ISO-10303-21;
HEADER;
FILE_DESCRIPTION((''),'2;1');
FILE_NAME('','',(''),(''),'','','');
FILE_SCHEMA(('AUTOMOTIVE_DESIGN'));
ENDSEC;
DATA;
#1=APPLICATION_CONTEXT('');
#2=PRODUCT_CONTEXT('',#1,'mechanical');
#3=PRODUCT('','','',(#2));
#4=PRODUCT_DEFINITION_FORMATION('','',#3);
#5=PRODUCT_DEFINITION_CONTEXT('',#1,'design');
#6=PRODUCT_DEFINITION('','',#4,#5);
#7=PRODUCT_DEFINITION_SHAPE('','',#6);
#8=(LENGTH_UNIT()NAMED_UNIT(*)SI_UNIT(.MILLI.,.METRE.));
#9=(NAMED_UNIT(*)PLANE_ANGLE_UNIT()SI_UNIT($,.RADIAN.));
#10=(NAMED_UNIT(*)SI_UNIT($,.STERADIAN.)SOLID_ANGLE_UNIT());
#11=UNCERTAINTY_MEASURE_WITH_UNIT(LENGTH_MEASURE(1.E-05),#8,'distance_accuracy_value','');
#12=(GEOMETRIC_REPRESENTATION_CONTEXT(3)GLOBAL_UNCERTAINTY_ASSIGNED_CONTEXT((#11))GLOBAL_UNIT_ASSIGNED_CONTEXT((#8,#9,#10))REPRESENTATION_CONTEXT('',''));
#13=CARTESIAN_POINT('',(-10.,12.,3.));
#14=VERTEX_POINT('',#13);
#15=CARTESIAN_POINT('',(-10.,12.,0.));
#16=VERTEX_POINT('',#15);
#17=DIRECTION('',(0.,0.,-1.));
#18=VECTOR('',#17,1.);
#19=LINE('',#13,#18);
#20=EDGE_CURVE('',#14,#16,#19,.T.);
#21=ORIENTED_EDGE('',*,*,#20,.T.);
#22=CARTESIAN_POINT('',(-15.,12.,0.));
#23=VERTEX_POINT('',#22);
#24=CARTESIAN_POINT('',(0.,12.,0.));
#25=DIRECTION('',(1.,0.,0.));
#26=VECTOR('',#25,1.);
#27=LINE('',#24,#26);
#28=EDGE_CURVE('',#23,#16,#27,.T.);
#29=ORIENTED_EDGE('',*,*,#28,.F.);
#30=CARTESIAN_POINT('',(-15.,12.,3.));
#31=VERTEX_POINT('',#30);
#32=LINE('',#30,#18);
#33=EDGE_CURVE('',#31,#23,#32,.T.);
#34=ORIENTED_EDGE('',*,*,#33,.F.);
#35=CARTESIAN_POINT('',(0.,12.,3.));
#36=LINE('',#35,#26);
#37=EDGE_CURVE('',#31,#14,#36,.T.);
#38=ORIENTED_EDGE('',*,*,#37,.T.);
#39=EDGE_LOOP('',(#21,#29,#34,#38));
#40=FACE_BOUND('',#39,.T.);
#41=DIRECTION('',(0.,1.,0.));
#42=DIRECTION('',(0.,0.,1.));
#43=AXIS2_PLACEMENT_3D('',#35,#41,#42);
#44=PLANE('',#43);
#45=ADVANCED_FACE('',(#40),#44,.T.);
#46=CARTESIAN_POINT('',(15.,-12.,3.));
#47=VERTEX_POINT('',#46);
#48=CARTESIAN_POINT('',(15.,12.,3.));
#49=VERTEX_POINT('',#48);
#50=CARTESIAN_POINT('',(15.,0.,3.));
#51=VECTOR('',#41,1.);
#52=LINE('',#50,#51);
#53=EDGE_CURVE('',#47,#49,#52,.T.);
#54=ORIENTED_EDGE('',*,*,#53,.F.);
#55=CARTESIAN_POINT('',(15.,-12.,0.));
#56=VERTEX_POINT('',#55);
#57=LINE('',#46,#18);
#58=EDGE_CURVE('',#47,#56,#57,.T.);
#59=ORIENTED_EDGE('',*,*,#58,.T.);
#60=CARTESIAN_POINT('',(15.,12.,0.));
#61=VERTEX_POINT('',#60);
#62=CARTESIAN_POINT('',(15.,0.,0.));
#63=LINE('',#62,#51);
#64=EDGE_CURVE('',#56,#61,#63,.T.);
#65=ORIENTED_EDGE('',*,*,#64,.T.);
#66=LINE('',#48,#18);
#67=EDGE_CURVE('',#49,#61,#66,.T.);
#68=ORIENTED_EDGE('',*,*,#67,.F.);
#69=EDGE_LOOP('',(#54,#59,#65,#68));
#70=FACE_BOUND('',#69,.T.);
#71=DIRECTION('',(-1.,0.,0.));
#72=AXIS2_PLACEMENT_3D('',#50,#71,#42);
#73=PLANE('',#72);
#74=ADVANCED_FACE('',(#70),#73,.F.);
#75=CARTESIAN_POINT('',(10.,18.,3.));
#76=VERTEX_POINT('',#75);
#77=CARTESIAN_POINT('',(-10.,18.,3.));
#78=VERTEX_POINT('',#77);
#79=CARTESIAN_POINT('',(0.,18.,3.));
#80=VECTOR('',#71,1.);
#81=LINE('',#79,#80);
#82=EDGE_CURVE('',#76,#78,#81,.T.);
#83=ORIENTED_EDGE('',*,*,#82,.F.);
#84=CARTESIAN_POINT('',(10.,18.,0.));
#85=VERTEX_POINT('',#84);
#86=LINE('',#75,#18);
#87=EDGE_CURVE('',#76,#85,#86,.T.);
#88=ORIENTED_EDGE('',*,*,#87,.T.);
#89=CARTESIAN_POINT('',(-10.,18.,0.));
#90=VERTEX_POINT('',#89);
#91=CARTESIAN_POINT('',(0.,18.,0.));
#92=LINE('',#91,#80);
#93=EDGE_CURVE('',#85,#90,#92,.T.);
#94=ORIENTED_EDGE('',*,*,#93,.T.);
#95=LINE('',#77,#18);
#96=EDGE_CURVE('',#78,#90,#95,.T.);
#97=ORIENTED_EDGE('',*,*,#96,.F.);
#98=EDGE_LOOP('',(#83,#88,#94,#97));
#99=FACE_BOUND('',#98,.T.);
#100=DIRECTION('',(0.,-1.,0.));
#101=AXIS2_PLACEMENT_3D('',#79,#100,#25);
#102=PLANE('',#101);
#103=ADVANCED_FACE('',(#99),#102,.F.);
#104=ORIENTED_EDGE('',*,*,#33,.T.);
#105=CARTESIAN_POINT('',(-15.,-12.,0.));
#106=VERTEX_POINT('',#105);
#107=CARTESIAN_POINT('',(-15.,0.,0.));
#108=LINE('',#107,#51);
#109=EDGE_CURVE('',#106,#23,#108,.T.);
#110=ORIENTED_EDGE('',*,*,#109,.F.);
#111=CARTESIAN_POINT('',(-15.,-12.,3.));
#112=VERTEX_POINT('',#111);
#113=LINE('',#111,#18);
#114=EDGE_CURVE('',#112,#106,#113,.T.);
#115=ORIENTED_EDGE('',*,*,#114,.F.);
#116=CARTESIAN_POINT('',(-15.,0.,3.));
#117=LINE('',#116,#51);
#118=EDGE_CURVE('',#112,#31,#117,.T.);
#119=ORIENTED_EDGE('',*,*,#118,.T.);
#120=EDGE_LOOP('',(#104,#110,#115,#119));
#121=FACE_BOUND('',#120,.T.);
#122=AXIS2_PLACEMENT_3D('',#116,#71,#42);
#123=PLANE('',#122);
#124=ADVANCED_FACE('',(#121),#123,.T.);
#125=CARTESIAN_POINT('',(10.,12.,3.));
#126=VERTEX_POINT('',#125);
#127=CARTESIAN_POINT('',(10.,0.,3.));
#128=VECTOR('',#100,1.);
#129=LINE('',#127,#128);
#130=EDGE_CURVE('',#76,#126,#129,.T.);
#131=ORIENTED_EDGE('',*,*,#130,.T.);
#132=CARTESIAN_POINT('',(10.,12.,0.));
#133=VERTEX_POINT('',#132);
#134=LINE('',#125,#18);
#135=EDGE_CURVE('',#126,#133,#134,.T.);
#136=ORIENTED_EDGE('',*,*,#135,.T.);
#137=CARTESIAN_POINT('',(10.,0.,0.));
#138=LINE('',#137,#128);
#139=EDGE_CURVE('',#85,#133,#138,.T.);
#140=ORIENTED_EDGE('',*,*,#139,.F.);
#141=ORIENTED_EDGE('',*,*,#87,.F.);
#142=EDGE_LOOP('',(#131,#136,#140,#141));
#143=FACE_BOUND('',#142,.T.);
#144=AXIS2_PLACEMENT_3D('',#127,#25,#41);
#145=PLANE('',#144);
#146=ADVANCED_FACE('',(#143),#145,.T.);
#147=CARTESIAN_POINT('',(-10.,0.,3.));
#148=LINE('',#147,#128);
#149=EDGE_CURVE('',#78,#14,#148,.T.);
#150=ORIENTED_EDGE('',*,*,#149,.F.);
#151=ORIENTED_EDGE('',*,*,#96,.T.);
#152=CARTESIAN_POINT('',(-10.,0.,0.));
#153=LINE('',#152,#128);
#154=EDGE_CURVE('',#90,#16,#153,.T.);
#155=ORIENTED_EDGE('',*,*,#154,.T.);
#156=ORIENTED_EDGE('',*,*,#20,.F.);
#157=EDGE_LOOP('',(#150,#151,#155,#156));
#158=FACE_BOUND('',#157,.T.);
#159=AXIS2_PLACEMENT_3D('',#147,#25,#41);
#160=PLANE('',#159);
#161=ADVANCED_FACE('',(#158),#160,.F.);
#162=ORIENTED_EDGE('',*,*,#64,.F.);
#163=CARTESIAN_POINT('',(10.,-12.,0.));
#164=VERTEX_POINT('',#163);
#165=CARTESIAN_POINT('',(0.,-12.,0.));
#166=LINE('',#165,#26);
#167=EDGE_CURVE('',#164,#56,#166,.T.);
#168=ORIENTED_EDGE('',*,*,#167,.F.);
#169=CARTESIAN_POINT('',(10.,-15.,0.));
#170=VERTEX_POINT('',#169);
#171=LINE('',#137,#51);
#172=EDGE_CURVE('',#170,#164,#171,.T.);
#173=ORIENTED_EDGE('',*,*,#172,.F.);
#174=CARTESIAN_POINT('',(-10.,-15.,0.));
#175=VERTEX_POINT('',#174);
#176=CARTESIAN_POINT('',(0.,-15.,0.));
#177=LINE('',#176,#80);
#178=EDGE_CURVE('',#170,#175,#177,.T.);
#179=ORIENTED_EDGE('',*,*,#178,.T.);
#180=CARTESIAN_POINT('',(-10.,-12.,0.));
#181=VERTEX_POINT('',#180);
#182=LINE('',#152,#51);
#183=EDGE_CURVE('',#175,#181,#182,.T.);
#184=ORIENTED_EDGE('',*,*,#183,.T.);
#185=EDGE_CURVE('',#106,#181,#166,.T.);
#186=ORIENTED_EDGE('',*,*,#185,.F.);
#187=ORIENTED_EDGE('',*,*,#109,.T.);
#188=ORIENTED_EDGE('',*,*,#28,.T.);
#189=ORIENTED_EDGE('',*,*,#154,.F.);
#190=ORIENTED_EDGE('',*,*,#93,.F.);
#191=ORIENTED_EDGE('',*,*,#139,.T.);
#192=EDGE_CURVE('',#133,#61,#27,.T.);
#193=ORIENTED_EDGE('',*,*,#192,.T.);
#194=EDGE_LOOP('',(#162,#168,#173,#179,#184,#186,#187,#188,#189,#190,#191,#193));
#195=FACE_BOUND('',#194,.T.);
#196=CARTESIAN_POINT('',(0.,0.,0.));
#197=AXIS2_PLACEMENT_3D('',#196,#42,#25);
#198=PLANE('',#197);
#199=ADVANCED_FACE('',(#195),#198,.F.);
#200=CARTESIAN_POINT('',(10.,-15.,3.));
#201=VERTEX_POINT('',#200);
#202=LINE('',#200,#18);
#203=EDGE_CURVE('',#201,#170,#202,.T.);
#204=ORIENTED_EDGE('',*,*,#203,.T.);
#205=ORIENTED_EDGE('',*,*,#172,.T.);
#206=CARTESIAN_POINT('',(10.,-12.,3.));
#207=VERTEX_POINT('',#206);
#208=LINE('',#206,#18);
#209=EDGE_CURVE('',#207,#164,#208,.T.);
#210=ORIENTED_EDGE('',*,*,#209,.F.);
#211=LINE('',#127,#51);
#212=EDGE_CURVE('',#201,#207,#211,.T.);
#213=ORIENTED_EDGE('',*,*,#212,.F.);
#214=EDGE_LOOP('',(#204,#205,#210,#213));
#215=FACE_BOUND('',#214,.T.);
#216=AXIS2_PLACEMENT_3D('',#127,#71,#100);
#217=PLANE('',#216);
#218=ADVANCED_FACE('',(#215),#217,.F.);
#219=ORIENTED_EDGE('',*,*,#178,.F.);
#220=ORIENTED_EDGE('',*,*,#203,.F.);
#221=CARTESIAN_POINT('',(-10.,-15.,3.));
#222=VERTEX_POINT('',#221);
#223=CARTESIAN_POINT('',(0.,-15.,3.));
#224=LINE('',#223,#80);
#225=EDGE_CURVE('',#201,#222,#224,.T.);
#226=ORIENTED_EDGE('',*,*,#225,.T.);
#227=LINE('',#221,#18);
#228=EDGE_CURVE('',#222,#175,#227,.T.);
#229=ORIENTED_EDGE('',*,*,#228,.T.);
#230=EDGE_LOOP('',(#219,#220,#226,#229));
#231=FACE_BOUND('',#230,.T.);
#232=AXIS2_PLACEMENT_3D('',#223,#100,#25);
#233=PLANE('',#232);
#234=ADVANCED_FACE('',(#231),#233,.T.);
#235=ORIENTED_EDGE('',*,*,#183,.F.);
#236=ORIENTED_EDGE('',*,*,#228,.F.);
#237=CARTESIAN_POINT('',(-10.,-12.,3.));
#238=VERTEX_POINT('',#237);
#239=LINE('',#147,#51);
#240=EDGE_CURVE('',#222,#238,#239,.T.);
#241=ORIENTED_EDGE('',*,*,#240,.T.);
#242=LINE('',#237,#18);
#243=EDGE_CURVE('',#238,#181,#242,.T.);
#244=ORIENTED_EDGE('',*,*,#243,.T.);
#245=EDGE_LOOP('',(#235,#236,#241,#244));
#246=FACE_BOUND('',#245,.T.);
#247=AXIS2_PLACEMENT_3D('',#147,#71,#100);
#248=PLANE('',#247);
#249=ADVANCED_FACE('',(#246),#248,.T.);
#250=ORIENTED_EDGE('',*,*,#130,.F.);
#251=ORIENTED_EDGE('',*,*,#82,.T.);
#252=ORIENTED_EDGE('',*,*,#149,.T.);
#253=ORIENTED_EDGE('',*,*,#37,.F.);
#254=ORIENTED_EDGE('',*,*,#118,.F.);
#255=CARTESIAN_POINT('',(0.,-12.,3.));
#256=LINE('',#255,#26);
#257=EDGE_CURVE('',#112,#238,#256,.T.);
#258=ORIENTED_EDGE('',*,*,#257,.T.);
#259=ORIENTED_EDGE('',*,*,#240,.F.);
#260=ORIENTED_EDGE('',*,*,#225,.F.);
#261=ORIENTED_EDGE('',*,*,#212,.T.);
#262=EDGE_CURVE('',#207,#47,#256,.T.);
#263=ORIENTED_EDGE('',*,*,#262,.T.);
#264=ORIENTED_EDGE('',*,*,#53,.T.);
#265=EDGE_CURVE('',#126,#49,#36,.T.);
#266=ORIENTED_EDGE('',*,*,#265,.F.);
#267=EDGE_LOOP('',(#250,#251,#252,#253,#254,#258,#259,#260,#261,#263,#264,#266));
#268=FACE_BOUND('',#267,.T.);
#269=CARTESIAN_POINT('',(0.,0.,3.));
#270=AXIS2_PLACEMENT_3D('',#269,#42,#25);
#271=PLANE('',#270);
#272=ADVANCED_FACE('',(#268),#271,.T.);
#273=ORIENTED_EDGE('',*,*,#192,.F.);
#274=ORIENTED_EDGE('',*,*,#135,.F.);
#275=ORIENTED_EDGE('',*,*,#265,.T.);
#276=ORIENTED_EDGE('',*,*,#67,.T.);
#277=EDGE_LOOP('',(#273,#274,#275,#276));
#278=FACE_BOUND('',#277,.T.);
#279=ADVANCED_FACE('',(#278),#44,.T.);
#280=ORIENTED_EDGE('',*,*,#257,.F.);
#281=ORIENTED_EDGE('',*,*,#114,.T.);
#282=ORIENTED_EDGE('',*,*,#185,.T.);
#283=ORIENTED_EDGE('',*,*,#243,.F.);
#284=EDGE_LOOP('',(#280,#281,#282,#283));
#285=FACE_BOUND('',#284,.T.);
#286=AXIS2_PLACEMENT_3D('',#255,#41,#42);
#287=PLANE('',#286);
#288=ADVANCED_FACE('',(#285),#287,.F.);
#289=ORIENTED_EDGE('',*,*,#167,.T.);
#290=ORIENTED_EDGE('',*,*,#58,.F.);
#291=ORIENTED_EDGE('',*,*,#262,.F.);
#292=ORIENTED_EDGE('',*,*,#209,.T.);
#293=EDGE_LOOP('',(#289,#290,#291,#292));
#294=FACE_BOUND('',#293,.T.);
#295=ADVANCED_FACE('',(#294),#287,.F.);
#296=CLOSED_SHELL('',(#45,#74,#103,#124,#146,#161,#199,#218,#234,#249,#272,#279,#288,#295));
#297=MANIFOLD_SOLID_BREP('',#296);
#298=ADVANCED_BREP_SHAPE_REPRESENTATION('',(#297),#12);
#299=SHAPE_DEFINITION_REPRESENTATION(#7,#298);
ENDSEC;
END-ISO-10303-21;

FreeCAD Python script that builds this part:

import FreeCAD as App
import Part
import Sketcher
Q = App.Units.Quantity


def add_polygon(sketch, points):
    """Adds a closed chain of lines whose ends are joined by coincident constraints."""
    first, n = sketch.GeometryCount, len(points)
    for a, b in zip(points, points[1:] + points[:1]):
        sketch.addGeometry(Part.LineSegment(App.Vector(*a, 0), App.Vector(*b, 0)), False)
    for i in range(n):
        sketch.addConstraint(Sketcher.Constraint("Coincident", first + i, 2, first + (i + 1) % n, 1))

doc = App.newDocument("Part")
body = doc.addObject("PartDesign::Body", "Body")

# Sketch on XY plane
sketch1 = body.newObject("Sketcher::SketchObject", "Sketch")
sketch1.AttachmentSupport = (doc.getObject("XY_Plane"), [""])
sketch1.MapMode = "FlatFace"
add_polygon(sketch1, [(-15, 12), (-15, -12), (-10, -12), (-10, -15), (10, -15), (10, -12), (15, -12), (15, 12), (10, 12), (10, 18), (-10, 18), (-10, 12)])  # lines 0-11
sketch1.addConstraint([
    Sketcher.Constraint("Vertical", 0),
    Sketcher.Constraint("Horizontal", 1),
    Sketcher.Constraint("Vertical", 2),
    Sketcher.Constraint("Horizontal", 3),
    Sketcher.Constraint("Vertical", 4),
    Sketcher.Constraint("Horizontal", 5),
    Sketcher.Constraint("Vertical", 6),
    Sketcher.Constraint("Horizontal", 7),
    Sketcher.Constraint("Vertical", 8),
    Sketcher.Constraint("Horizontal", 9),
    Sketcher.Constraint("Vertical", 10),
    Sketcher.Constraint("Horizontal", 11),
    Sketcher.Constraint("Symmetric", 0, 2, 6, 2, -1, 1),
    Sketcher.Constraint("Symmetric", 4, 2, 10, 2, -1, 1),
    Sketcher.Constraint("Symmetric", 1, 2, 4, 2, -2),
    Sketcher.Constraint("Vertical", 4, 2, 7, 2),
    Sketcher.Constraint("DistanceX", 1, 1, 1, 2, Q("5 mm")),
    Sketcher.Constraint("DistanceX", 3, 1, 3, 2, Q("20 mm")),
    Sketcher.Constraint("DistanceY", 0, 2, 0, 1, Q("24 mm")),
    Sketcher.Constraint("DistanceY", 2, 2, 2, 1, Q("3 mm")),
    Sketcher.Constraint("DistanceY", 8, 1, 8, 2, Q("6 mm")),
])
pad1 = body.newObject("PartDesign::Pad", "Pad")
pad1.Profile = sketch1
pad1.Length = 3

doc.recompute()
